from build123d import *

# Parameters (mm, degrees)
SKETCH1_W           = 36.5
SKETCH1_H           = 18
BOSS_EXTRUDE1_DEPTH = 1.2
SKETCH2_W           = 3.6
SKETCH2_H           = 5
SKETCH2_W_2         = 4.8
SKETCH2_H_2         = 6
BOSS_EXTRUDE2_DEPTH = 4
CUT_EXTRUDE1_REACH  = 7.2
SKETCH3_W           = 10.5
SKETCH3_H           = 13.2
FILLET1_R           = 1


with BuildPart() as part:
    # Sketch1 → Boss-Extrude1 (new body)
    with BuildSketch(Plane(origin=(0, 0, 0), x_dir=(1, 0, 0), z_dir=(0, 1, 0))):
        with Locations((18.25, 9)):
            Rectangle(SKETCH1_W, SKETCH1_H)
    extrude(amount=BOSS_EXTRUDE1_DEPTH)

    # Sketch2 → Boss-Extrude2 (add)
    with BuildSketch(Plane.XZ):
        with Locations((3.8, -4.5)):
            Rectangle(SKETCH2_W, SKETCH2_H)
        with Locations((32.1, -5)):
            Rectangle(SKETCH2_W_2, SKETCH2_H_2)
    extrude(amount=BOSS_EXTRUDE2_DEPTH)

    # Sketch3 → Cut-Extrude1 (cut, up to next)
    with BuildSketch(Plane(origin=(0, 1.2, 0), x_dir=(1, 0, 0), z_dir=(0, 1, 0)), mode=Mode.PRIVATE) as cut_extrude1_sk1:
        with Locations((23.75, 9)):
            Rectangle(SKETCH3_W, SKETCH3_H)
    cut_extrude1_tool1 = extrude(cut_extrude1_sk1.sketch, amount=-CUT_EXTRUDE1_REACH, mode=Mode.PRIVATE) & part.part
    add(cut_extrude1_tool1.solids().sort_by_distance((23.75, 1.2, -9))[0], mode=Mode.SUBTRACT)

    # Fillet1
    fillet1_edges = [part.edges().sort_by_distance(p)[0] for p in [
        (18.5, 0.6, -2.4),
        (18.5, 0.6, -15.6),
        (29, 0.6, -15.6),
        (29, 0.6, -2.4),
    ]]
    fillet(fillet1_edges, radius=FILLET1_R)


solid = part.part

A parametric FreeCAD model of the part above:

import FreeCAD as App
import Part
import Sketcher
from FreeCAD import Vector


def edges_at(feature, points):
    """Names of the edges that pass closest to the given points."""
    edges = feature.Shape.Edges
    near = lambda p: min(range(len(edges)), key=lambda i: edges[i].distToShape(Part.Vertex(*p))[0])
    return sorted({f"Edge{near(p) + 1}" for p in points})

doc = App.newDocument("Part")
body = doc.addObject("PartDesign::Body", "Body")

sketch1 = body.newObject("Sketcher::SketchObject", "Sketch")
sketch1.AttachmentSupport = (doc.getObject("XZ_Plane"), [""])
sketch1.MapMode = "FlatFace"
sketch1.addGeometry(Part.LineSegment(Vector(0, -18, 0), Vector(0, 0, 0)), False)
sketch1.addGeometry(Part.LineSegment(Vector(0, 0, 0), Vector(36.5, 0, 0)), False)
sketch1.addGeometry(Part.LineSegment(Vector(36.5, 0, 0), Vector(36.5, -18, 0)), False)
sketch1.addGeometry(Part.LineSegment(Vector(36.5, -18, 0), Vector(0, -18, 0)), False)
sketch1.addConstraint(Sketcher.Constraint("Coincident", 0, 2, 1, 1))
sketch1.addConstraint(Sketcher.Constraint("Coincident", 1, 2, 2, 1))
sketch1.addConstraint(Sketcher.Constraint("Coincident", 2, 2, 3, 1))
sketch1.addConstraint(Sketcher.Constraint("Coincident", 3, 2, 0, 1))
sketch1.addConstraint(Sketcher.Constraint("Vertical", 0))
sketch1.addConstraint(Sketcher.Constraint("Horizontal", 1))
sketch1.addConstraint(Sketcher.Constraint("Vertical", 2))
sketch1.addConstraint(Sketcher.Constraint("Horizontal", 3))
sketch1.addConstraint(Sketcher.Constraint("Coincident", 0, 2, -1, 1))
sketch1.addConstraint(Sketcher.Constraint("DistanceY", 0, 1, 0, 2, 18.0))
sketch1.addConstraint(Sketcher.Constraint("DistanceX", 1, 1, 1, 2, 36.5))
pad1 = body.newObject("PartDesign::Pad", "Pad")
pad1.Profile = sketch1
pad1.Length = 1.2
pad1.Reversed = True

sketch2 = body.newObject("Sketcher::SketchObject", "Sketch001")
sketch2.AttachmentSupport = (doc.getObject("XZ_Plane"), [""])
sketch2.MapMode = "FlatFace"
sketch2.addGeometry(Part.LineSegment(Vector(2, -2, 0), Vector(2, -7, 0)), False)
sketch2.addGeometry(Part.LineSegment(Vector(2, -7, 0), Vector(5.6, -7, 0)), False)
sketch2.addGeometry(Part.LineSegment(Vector(5.6, -7, 0), Vector(5.6, -2, 0)), False)
sketch2.addGeometry(Part.LineSegment(Vector(5.6, -2, 0), Vector(2, -2, 0)), False)
sketch2.addGeometry(Part.LineSegment(Vector(29.7, -2, 0), Vector(29.7, -8, 0)), False)
sketch2.addGeometry(Part.LineSegment(Vector(29.7, -8, 0), Vector(34.5, -8, 0)), False)
sketch2.addGeometry(Part.LineSegment(Vector(34.5, -8, 0), Vector(34.5, -2, 0)), False)
sketch2.addGeometry(Part.LineSegment(Vector(34.5, -2, 0), Vector(29.7, -2, 0)), False)
sketch2.addConstraint(Sketcher.Constraint("Coincident", 0, 2, 1, 1))
sketch2.addConstraint(Sketcher.Constraint("Coincident", 1, 2, 2, 1))
sketch2.addConstraint(Sketcher.Constraint("Coincident", 2, 2, 3, 1))
sketch2.addConstraint(Sketcher.Constraint("Coincident", 3, 2, 0, 1))
sketch2.addConstraint(Sketcher.Constraint("Coincident", 4, 2, 5, 1))
sketch2.addConstraint(Sketcher.Constraint("Coincident", 5, 2, 6, 1))
sketch2.addConstraint(Sketcher.Constraint("Coincident", 6, 2, 7, 1))
sketch2.addConstraint(Sketcher.Constraint("Coincident", 7, 2, 4, 1))
sketch2.addConstraint(Sketcher.Constraint("Vertical", 0))
sketch2.addConstraint(Sketcher.Constraint("Horizontal", 1))
sketch2.addConstraint(Sketcher.Constraint("Vertical", 2))
sketch2.addConstraint(Sketcher.Constraint("Horizontal", 3))
sketch2.addConstraint(Sketcher.Constraint("Vertical", 4))
sketch2.addConstraint(Sketcher.Constraint("Horizontal", 5))
sketch2.addConstraint(Sketcher.Constraint("Vertical", 6))
sketch2.addConstraint(Sketcher.Constraint("Horizontal", 7))
sketch2.addConstraint(Sketcher.Constraint("Horizontal", 3, 2, 6, 2))
sketch2.addConstraint(Sketcher.Constraint("DistanceY", 0, 2, 0, 1, 5.0))
sketch2.addConstraint(Sketcher.Constraint("DistanceY", 4, 2, 4, 1, 6.0))
sketch2.addConstraint(Sketcher.Constraint("DistanceX", 1, 1, 1, 2, 3.6))
sketch2.addConstraint(Sketcher.Constraint("DistanceX", 5, 1, 5, 2, 4.8))
sketch2.addConstraint(Sketcher.Constraint("DistanceX", -1, 1, 0, 2, 2.0))
sketch2.addConstraint(Sketcher.Constraint("DistanceY", 0, 2, -1, 1, 7.0))
sketch2.addConstraint(Sketcher.Constraint("DistanceX", -1, 1, 4, 2, 29.7))
pad2 = body.newObject("PartDesign::Pad", "Pad001")
pad2.Profile = sketch2
pad2.Length = 4

sketch3 = body.newObject("Sketcher::SketchObject", "Sketch002")
sketch3.AttachmentSupport = (doc.getObject("XZ_Plane"), [""])
sketch3.MapMode = "FlatFace"
sketch3.AttachmentOffset = App.Placement(Vector(0, 0, -1.2), App.Rotation())
sketch3.addGeometry(Part.LineSegment(Vector(18.5, -15.6, 0), Vector(18.5, -2.4, 0)), False)
sketch3.addGeometry(Part.LineSegment(Vector(18.5, -2.4, 0), Vector(29, -2.4, 0)), False)
sketch3.addGeometry(Part.LineSegment(Vector(29, -2.4, 0), Vector(29, -15.6, 0)), False)
sketch3.addGeometry(Part.LineSegment(Vector(29, -15.6, 0), Vector(18.5, -15.6, 0)), False)
sketch3.addConstraint(Sketcher.Constraint("Coincident", 0, 2, 1, 1))
sketch3.addConstraint(Sketcher.Constraint("Coincident", 1, 2, 2, 1))
sketch3.addConstraint(Sketcher.Constraint("Coincident", 2, 2, 3, 1))
sketch3.addConstraint(Sketcher.Constraint("Coincident", 3, 2, 0, 1))
sketch3.addConstraint(Sketcher.Constraint("Vertical", 0))
sketch3.addConstraint(Sketcher.Constraint("Horizontal", 1))
sketch3.addConstraint(Sketcher.Constraint("Vertical", 2))
sketch3.addConstraint(Sketcher.Constraint("Horizontal", 3))
sketch3.addConstraint(Sketcher.Constraint("DistanceX", 1, 1, 1, 2, 10.5))
sketch3.addConstraint(Sketcher.Constraint("DistanceY", 0, 1, 0, 2, 13.2))
sketch3.addConstraint(Sketcher.Constraint("DistanceX", -1, 1, 1, 2, 29.0))
sketch3.addConstraint(Sketcher.Constraint("DistanceY", 0, 2, -1, 1, 2.4))
pocket1 = body.newObject("PartDesign::Pocket", "Pocket")
pocket1.Profile = sketch3
pocket1.Type = "UpToFirst"
pocket1.Reversed = True
doc.recompute()

fillet = body.newObject("PartDesign::Fillet", "Fillet")
fillet.Base = (pocket1, edges_at(pocket1, [
    (18.5, 0.6, -2.4),
    (18.5, 0.6, -15.6),
    (29, 0.6, -15.6),
    (29, 0.6, -2.4),
]))
fillet.Radius = 1

doc.recompute()
